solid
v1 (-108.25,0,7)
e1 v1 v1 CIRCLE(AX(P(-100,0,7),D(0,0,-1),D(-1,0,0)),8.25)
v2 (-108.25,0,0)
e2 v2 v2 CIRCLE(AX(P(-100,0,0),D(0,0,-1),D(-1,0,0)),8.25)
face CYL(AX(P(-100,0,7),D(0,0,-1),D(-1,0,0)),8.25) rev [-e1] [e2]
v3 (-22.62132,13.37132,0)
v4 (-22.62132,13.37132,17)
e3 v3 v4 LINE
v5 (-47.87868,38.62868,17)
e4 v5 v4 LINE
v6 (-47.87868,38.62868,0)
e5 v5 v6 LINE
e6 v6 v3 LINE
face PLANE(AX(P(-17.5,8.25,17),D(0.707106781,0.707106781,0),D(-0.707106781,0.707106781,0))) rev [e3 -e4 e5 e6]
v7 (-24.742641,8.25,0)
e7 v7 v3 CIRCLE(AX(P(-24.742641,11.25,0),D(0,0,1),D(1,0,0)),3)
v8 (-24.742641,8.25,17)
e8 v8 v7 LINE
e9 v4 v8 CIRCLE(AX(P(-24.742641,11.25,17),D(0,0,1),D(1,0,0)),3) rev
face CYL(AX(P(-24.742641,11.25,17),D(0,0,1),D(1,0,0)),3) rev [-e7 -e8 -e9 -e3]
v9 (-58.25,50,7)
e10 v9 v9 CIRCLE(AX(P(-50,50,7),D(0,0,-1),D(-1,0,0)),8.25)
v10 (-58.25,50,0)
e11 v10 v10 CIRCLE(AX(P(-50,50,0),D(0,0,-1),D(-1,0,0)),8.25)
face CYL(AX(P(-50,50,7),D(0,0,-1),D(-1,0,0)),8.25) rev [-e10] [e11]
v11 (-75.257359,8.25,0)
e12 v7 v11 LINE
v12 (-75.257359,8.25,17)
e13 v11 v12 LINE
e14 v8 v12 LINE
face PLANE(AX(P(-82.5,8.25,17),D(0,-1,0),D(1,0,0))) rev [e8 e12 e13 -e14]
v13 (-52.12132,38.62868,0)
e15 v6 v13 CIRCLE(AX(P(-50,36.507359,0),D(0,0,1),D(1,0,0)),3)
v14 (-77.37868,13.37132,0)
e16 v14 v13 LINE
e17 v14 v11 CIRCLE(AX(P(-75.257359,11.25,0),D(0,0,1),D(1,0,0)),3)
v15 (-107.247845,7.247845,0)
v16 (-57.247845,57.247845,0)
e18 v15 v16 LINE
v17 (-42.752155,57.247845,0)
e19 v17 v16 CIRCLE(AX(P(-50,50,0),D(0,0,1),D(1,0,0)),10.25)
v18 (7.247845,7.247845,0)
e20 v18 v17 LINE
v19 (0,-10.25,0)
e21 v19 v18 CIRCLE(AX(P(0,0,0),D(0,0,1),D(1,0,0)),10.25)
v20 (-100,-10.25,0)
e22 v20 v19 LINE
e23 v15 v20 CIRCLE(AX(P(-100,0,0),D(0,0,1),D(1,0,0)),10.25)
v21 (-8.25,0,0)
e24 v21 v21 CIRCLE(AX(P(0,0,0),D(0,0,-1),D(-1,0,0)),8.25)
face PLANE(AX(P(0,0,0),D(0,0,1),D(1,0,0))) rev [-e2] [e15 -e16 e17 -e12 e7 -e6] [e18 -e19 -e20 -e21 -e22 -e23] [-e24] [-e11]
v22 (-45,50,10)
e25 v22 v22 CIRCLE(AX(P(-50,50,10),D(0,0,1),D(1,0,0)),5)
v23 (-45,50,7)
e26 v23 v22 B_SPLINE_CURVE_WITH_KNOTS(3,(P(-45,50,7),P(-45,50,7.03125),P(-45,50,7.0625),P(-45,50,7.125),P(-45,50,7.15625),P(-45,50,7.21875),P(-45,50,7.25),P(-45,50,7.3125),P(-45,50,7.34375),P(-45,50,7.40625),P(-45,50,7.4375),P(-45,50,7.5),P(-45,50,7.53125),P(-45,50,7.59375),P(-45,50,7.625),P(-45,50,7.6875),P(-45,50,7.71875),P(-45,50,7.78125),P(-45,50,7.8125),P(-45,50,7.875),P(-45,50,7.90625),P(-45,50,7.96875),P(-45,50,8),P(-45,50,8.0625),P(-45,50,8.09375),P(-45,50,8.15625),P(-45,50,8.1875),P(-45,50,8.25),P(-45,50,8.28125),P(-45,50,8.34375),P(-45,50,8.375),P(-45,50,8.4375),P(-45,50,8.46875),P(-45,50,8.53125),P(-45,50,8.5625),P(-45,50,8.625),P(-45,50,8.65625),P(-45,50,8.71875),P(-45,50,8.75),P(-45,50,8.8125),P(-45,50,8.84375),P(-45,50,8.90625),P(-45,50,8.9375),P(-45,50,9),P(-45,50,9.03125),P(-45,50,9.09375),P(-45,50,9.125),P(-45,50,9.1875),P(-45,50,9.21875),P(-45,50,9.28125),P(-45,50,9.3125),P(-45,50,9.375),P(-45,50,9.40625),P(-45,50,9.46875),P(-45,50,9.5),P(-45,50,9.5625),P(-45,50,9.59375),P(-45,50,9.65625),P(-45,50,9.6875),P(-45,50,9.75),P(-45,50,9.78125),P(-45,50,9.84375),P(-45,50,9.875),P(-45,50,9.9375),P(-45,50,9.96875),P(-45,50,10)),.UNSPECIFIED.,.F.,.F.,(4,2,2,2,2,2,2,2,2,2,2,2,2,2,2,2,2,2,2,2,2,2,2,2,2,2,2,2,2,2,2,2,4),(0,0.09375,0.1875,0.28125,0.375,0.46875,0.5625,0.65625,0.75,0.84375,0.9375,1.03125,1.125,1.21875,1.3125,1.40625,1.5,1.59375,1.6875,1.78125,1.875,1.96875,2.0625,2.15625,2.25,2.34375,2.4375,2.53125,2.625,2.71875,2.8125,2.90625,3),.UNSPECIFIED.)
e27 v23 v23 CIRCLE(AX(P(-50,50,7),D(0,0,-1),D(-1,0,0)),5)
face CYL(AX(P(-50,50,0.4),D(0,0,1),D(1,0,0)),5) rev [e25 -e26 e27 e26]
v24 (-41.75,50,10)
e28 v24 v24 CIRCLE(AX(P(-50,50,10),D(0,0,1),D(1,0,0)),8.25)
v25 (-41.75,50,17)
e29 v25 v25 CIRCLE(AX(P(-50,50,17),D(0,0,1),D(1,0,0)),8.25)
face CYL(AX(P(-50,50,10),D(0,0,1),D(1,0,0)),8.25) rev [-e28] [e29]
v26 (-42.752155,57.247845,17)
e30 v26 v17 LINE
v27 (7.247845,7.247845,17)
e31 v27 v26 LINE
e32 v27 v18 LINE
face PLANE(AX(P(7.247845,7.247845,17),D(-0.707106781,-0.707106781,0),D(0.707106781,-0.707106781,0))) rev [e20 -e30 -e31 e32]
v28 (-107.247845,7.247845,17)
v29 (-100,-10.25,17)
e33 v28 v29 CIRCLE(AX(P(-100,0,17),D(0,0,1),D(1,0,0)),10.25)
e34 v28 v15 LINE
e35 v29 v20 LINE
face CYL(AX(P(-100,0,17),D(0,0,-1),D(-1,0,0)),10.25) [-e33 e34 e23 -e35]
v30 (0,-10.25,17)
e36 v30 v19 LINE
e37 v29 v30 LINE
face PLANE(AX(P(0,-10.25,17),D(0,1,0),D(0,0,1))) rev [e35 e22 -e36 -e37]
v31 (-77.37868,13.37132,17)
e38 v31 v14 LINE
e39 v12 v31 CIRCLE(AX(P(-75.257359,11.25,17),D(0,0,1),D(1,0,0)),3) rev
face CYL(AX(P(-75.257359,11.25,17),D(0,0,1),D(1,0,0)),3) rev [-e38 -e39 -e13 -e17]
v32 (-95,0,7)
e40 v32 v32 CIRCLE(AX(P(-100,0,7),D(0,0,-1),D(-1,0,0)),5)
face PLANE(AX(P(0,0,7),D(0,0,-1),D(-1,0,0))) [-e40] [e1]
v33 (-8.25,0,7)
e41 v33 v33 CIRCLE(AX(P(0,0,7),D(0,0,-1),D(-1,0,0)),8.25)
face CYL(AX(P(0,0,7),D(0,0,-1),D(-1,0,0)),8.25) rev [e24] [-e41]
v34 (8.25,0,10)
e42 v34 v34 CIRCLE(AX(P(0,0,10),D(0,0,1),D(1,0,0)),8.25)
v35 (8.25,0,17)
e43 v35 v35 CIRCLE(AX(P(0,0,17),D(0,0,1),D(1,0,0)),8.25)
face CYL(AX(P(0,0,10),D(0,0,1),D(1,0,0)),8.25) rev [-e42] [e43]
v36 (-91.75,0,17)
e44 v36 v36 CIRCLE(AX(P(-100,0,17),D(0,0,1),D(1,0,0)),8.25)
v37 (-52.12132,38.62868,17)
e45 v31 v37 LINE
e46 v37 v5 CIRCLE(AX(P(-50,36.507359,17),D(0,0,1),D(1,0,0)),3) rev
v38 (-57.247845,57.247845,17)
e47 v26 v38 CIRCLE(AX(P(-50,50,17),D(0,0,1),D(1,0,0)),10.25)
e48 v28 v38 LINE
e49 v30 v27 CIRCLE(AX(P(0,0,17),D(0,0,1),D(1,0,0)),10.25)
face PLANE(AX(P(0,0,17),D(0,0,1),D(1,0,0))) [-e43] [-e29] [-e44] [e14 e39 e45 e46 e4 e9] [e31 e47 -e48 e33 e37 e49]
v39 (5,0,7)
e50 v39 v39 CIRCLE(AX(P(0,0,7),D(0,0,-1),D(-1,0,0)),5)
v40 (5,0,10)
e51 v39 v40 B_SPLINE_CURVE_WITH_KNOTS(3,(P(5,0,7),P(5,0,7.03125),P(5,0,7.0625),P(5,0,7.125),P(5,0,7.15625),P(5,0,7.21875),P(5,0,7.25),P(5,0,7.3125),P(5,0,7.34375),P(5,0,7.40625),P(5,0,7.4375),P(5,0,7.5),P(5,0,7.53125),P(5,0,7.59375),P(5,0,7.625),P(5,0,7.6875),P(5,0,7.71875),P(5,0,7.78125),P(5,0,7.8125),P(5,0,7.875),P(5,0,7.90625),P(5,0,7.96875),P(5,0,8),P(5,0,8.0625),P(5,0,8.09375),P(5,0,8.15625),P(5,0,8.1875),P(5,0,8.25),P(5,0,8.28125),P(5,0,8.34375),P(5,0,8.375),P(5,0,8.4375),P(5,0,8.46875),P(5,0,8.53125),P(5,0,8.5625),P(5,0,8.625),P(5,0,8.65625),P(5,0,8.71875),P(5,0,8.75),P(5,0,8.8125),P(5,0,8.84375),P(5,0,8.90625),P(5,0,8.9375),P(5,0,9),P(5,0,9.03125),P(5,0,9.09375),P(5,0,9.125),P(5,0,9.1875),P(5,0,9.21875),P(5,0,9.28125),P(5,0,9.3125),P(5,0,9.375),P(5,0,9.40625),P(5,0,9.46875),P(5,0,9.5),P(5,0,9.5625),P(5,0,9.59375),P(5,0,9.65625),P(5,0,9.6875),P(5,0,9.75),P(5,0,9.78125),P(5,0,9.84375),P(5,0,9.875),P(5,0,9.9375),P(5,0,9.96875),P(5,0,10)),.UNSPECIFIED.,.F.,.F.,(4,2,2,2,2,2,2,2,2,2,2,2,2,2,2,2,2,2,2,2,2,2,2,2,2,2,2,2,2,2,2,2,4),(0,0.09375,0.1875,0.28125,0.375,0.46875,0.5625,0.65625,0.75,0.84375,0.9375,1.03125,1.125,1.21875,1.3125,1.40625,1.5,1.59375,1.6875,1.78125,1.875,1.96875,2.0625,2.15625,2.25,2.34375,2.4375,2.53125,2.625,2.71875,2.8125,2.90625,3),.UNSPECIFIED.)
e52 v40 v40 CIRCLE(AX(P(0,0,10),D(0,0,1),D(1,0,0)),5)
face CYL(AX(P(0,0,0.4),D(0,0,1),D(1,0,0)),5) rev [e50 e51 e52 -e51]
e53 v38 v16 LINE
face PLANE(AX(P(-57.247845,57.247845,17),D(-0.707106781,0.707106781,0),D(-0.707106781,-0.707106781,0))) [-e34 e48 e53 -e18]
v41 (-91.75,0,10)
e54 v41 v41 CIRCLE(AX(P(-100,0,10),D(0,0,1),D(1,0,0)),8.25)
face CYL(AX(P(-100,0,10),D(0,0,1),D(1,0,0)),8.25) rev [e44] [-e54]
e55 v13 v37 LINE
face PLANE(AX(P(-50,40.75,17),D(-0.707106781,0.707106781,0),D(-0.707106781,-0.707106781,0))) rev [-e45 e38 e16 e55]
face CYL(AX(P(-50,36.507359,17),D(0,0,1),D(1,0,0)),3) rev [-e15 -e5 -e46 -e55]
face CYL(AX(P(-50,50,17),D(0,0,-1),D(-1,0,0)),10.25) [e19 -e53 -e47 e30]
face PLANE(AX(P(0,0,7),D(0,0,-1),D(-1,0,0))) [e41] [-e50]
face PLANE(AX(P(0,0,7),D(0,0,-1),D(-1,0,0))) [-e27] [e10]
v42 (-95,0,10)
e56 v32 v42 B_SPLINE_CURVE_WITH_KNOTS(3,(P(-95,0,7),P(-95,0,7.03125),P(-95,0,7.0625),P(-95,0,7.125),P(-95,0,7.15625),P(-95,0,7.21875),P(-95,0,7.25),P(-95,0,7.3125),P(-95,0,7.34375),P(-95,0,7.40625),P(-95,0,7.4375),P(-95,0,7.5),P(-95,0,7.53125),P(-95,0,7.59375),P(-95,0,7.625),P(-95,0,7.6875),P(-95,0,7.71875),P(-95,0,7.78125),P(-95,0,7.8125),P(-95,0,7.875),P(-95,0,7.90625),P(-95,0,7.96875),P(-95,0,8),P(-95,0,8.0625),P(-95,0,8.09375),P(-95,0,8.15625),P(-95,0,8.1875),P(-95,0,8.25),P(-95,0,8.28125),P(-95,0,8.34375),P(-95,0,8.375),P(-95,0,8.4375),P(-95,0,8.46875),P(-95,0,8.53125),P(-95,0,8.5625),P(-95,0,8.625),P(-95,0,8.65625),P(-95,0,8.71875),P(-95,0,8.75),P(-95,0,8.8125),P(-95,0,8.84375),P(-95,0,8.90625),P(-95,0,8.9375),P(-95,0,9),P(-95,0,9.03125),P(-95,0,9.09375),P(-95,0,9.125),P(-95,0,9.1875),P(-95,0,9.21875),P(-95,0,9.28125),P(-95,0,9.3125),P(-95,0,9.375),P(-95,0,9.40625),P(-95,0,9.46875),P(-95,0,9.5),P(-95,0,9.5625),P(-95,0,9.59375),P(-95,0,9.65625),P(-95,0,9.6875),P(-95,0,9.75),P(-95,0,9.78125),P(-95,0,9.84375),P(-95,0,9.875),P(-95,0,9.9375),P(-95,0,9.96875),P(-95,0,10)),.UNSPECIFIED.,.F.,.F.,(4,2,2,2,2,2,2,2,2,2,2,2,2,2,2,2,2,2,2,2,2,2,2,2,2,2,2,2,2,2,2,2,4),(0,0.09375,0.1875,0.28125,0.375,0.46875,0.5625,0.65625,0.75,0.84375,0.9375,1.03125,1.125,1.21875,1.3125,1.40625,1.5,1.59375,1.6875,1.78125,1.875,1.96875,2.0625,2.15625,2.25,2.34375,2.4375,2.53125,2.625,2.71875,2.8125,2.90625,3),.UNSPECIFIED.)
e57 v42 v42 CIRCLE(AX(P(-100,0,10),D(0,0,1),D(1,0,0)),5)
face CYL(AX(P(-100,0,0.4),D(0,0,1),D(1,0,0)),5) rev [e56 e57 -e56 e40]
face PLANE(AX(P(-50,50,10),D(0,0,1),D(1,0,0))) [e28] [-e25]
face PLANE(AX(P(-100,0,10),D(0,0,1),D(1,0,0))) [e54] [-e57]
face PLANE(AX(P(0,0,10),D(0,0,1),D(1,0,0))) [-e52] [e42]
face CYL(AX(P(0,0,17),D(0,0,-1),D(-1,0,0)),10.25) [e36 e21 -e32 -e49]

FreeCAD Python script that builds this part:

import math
import FreeCAD as App
import Part
import Sketcher


def edges_at(feature, points):
    """Names of the edges that pass closest to the given points."""
    edges = feature.Shape.Edges
    near = lambda p: min(range(len(edges)), key=lambda i: edges[i].distToShape(Part.Vertex(*p))[0])
    return sorted({f"Edge{near(p) + 1}" for p in points})

doc = App.newDocument("Part")
body = doc.addObject("PartDesign::Body", "Body")

sketch1 = body.newObject("Sketcher::SketchObject", "Sketch")
sketch1.AttachmentSupport = (doc.getObject("XY_Plane"), [""])
sketch1.MapMode = "FlatFace"
sketch1.addGeometry([
    Part.ArcOfCircle(Part.Circle(App.Vector(-100, 0, 0), App.Vector(0, 0, 1), 10), math.radians(135), math.radians(270)),
    Part.LineSegment(App.Vector(-100, -10, 0), App.Vector(0, -10, 0)),
    Part.ArcOfCircle(Part.Circle(App.Vector(0, 0, 0), App.Vector(0, 0, 1), 10), math.radians(-90), math.radians(45)),
    Part.LineSegment(App.Vector(7, 7, 0), App.Vector(-43, 57, 0)),
    Part.ArcOfCircle(Part.Circle(App.Vector(-50, 50, 0), App.Vector(0, 0, 1), 10), math.radians(45), math.radians(135)),
    Part.LineSegment(App.Vector(-57, 57, 0), App.Vector(-107, 7, 0)),
    Part.LineSegment(App.Vector(-50, 36, 0), App.Vector(-25, 10, 0)),
    Part.LineSegment(App.Vector(-25, 10, 0), App.Vector(-75, 10, 0)),
    Part.LineSegment(App.Vector(-75, 10, 0), App.Vector(-50, 36, 0)),
], False)
sketch1.addConstraint([
    Sketcher.Constraint("Tangent", 0, 2, 1, 1),
    Sketcher.Constraint("Tangent", 1, 2, 2, 1),
    Sketcher.Constraint("Tangent", 2, 2, 3, 1),
    Sketcher.Constraint("Tangent", 3, 2, 4, 1),
    Sketcher.Constraint("Tangent", 4, 2, 5, 1),
    Sketcher.Constraint("Tangent", 5, 2, 0, 1),
    Sketcher.Constraint("Coincident", 6, 2, 7, 1),
    Sketcher.Constraint("Coincident", 7, 2, 8, 1),
    Sketcher.Constraint("Coincident", 8, 2, 6, 1),
    Sketcher.Constraint("Horizontal", 1),
    Sketcher.Constraint("Horizontal", 7),
    Sketcher.Constraint("Coincident", 2, 3, -1, 1),
    Sketcher.Constraint("Equal", 0, 2),
    Sketcher.Constraint("Equal", 2, 4),
    Sketcher.Constraint("Perpendicular", 3, 5),
    Sketcher.Constraint("Perpendicular", 5, 6),
    Sketcher.Constraint("Perpendicular", 6, 8),
    Sketcher.Constraint("Horizontal", 3, 2, 4, 2),
    Sketcher.Constraint("Vertical", 4, 3, 8, 2),
    Sketcher.Constraint("DistanceX", 1, 1, 1, 2, 100.0),
    Sketcher.Constraint("Radius", 0, 10.25),
    Sketcher.Constraint("DistanceY", 1, 2, 6, 2, 20.5),
    Sketcher.Constraint("DistanceX", 7, 2, 7, 1, 50.508622),
])
pad1 = body.newObject("PartDesign::Pad", "Pad")
pad1.Profile = sketch1
pad1.Length = 17

sketch2 = body.newObject("Sketcher::SketchObject", "Sketch001")
sketch2.AttachmentSupport = (doc.getObject("XY_Plane"), [""])
sketch2.MapMode = "FlatFace"
sketch2.addGeometry([
    Part.Circle(App.Vector(0, 0, 0), App.Vector(0, 0, 1), 8),
    Part.Circle(App.Vector(-50, 50, 0), App.Vector(0, 0, 1), 8),
    Part.Circle(App.Vector(-100, 0, 0), App.Vector(0, 0, 1), 8),
], False)
sketch2.addConstraint([
    Sketcher.Constraint("Coincident", 0, 3, -1, 1),
    Sketcher.Constraint("Equal", 0, 1),
    Sketcher.Constraint("Equal", 1, 2),
    Sketcher.Constraint("PointOnObject", 2, 3, -1),
    Sketcher.Constraint("Diameter", 0, 16.5),
    Sketcher.Constraint("DistanceX", 1, 3, -1, 1, 50.0),
    Sketcher.Constraint("DistanceY", -1, 1, 1, 3, 50.0),
    Sketcher.Constraint("DistanceX", 2, 3, -1, 1, 100.0),
])
pocket1 = body.newObject("PartDesign::Pocket", "Pocket")
pocket1.Profile = sketch2
pocket1.Length = 7
pocket1.Reversed = True

sketch3 = body.newObject("Sketcher::SketchObject", "Sketch002")
sketch3.AttachmentSupport = (doc.getObject("XY_Plane"), [""])
sketch3.MapMode = "FlatFace"
sketch3.AttachmentOffset = App.Placement(App.Vector(0, 0, 10), App.Rotation())
sketch3.addGeometry([
    Part.Circle(App.Vector(-100, 0, 0), App.Vector(0, 0, 1), 8),
    Part.Circle(App.Vector(-50, 50, 0), App.Vector(0, 0, 1), 8),
    Part.Circle(App.Vector(0, 0, 0), App.Vector(0, 0, 1), 8),
], False)
sketch3.addConstraint([
    Sketcher.Constraint("Coincident", 2, 3, -1, 1),
    Sketcher.Constraint("Equal", 0, 1),
    Sketcher.Constraint("Equal", 1, 2),
    Sketcher.Constraint("PointOnObject", 0, 3, -1),
    Sketcher.Constraint("Diameter", 0, 16.5),
    Sketcher.Constraint("DistanceX", 0, 3, -1, 1, 100.0),
    Sketcher.Constraint("DistanceX", 1, 3, -1, 1, 50.0),
    Sketcher.Constraint("DistanceY", -1, 1, 1, 3, 50.0),
])
pocket2 = body.newObject("PartDesign::Pocket", "Pocket001")
pocket2.Profile = sketch3
pocket2.Length = 7
pocket2.Reversed = True

sketch4 = body.newObject("Sketcher::SketchObject", "Sketch003")
sketch4.AttachmentSupport = (doc.getObject("XY_Plane"), [""])
sketch4.MapMode = "FlatFace"
sketch4.addGeometry([
    Part.LineSegment(App.Vector(-50, 41, 0), App.Vector(-18, 8, 0)),
    Part.LineSegment(App.Vector(-18, 8, 0), App.Vector(-82, 8, 0)),
    Part.LineSegment(App.Vector(-82, 8, 0), App.Vector(-50, 41, 0)),
], False)
sketch4.addConstraint([
    Sketcher.Constraint("Coincident", 0, 2, 1, 1),
    Sketcher.Constraint("Coincident", 1, 2, 2, 1),
    Sketcher.Constraint("Coincident", 2, 2, 0, 1),
    Sketcher.Constraint("Horizontal", 1),
    Sketcher.Constraint("Perpendicular", 0, 2),
    Sketcher.Constraint("Equal", 0, 2),
    Sketcher.Constraint("DistanceX", 1, 2, 1, 1, 65.0),
    Sketcher.Constraint("DistanceX", 2, 2, -1, 1, 50.0),
    Sketcher.Constraint("DistanceY", -1, 1, 0, 2, 8.25),
])
pocket3 = body.newObject("PartDesign::Pocket", "Pocket002")
pocket3.Profile = sketch4
pocket3.Type = "ThroughAll"
pocket3.Reversed = True

sketch5 = body.newObject("Sketcher::SketchObject", "Sketch004")
sketch5.AttachmentSupport = (doc.getObject("XY_Plane"), [""])
sketch5.MapMode = "FlatFace"
sketch5.AttachmentOffset = App.Placement(App.Vector(0, 0, 17), App.Rotation())
sketch5.addGeometry([
    Part.Circle(App.Vector(-100, 0, 0), App.Vector(0, 0, 1), 5),
    Part.Circle(App.Vector(-50, 50, 0), App.Vector(0, 0, 1), 5),
    Part.Circle(App.Vector(0, 0, 0), App.Vector(0, 0, 1), 5),
], False)
sketch5.addConstraint([
    Sketcher.Constraint("Coincident", 2, 3, -1, 1),
    Sketcher.Constraint("Equal", 0, 1),
    Sketcher.Constraint("Equal", 1, 2),
    Sketcher.Constraint("PointOnObject", 0, 3, -1),
    Sketcher.Constraint("Diameter", 0, 10.0),
    Sketcher.Constraint("DistanceX", 0, 3, -1, 1, 100.0),
    Sketcher.Constraint("DistanceX", 1, 3, -1, 1, 50.0),
    Sketcher.Constraint("DistanceY", -1, 1, 1, 3, 50.0),
])
pocket4 = body.newObject("PartDesign::Pocket", "Pocket003")
pocket4.Profile = sketch5
pocket4.Length = 16.6
doc.recompute()

fillet = body.newObject("PartDesign::Fillet", "Fillet")
fillet.Base = (pocket4, edges_at(pocket4, [(-82.5, 8.25, 8.5), (-17.5, 8.25, 8.5), (-50, 40.75, 8.5)]))
fillet.Radius = 3

doc.recompute()
